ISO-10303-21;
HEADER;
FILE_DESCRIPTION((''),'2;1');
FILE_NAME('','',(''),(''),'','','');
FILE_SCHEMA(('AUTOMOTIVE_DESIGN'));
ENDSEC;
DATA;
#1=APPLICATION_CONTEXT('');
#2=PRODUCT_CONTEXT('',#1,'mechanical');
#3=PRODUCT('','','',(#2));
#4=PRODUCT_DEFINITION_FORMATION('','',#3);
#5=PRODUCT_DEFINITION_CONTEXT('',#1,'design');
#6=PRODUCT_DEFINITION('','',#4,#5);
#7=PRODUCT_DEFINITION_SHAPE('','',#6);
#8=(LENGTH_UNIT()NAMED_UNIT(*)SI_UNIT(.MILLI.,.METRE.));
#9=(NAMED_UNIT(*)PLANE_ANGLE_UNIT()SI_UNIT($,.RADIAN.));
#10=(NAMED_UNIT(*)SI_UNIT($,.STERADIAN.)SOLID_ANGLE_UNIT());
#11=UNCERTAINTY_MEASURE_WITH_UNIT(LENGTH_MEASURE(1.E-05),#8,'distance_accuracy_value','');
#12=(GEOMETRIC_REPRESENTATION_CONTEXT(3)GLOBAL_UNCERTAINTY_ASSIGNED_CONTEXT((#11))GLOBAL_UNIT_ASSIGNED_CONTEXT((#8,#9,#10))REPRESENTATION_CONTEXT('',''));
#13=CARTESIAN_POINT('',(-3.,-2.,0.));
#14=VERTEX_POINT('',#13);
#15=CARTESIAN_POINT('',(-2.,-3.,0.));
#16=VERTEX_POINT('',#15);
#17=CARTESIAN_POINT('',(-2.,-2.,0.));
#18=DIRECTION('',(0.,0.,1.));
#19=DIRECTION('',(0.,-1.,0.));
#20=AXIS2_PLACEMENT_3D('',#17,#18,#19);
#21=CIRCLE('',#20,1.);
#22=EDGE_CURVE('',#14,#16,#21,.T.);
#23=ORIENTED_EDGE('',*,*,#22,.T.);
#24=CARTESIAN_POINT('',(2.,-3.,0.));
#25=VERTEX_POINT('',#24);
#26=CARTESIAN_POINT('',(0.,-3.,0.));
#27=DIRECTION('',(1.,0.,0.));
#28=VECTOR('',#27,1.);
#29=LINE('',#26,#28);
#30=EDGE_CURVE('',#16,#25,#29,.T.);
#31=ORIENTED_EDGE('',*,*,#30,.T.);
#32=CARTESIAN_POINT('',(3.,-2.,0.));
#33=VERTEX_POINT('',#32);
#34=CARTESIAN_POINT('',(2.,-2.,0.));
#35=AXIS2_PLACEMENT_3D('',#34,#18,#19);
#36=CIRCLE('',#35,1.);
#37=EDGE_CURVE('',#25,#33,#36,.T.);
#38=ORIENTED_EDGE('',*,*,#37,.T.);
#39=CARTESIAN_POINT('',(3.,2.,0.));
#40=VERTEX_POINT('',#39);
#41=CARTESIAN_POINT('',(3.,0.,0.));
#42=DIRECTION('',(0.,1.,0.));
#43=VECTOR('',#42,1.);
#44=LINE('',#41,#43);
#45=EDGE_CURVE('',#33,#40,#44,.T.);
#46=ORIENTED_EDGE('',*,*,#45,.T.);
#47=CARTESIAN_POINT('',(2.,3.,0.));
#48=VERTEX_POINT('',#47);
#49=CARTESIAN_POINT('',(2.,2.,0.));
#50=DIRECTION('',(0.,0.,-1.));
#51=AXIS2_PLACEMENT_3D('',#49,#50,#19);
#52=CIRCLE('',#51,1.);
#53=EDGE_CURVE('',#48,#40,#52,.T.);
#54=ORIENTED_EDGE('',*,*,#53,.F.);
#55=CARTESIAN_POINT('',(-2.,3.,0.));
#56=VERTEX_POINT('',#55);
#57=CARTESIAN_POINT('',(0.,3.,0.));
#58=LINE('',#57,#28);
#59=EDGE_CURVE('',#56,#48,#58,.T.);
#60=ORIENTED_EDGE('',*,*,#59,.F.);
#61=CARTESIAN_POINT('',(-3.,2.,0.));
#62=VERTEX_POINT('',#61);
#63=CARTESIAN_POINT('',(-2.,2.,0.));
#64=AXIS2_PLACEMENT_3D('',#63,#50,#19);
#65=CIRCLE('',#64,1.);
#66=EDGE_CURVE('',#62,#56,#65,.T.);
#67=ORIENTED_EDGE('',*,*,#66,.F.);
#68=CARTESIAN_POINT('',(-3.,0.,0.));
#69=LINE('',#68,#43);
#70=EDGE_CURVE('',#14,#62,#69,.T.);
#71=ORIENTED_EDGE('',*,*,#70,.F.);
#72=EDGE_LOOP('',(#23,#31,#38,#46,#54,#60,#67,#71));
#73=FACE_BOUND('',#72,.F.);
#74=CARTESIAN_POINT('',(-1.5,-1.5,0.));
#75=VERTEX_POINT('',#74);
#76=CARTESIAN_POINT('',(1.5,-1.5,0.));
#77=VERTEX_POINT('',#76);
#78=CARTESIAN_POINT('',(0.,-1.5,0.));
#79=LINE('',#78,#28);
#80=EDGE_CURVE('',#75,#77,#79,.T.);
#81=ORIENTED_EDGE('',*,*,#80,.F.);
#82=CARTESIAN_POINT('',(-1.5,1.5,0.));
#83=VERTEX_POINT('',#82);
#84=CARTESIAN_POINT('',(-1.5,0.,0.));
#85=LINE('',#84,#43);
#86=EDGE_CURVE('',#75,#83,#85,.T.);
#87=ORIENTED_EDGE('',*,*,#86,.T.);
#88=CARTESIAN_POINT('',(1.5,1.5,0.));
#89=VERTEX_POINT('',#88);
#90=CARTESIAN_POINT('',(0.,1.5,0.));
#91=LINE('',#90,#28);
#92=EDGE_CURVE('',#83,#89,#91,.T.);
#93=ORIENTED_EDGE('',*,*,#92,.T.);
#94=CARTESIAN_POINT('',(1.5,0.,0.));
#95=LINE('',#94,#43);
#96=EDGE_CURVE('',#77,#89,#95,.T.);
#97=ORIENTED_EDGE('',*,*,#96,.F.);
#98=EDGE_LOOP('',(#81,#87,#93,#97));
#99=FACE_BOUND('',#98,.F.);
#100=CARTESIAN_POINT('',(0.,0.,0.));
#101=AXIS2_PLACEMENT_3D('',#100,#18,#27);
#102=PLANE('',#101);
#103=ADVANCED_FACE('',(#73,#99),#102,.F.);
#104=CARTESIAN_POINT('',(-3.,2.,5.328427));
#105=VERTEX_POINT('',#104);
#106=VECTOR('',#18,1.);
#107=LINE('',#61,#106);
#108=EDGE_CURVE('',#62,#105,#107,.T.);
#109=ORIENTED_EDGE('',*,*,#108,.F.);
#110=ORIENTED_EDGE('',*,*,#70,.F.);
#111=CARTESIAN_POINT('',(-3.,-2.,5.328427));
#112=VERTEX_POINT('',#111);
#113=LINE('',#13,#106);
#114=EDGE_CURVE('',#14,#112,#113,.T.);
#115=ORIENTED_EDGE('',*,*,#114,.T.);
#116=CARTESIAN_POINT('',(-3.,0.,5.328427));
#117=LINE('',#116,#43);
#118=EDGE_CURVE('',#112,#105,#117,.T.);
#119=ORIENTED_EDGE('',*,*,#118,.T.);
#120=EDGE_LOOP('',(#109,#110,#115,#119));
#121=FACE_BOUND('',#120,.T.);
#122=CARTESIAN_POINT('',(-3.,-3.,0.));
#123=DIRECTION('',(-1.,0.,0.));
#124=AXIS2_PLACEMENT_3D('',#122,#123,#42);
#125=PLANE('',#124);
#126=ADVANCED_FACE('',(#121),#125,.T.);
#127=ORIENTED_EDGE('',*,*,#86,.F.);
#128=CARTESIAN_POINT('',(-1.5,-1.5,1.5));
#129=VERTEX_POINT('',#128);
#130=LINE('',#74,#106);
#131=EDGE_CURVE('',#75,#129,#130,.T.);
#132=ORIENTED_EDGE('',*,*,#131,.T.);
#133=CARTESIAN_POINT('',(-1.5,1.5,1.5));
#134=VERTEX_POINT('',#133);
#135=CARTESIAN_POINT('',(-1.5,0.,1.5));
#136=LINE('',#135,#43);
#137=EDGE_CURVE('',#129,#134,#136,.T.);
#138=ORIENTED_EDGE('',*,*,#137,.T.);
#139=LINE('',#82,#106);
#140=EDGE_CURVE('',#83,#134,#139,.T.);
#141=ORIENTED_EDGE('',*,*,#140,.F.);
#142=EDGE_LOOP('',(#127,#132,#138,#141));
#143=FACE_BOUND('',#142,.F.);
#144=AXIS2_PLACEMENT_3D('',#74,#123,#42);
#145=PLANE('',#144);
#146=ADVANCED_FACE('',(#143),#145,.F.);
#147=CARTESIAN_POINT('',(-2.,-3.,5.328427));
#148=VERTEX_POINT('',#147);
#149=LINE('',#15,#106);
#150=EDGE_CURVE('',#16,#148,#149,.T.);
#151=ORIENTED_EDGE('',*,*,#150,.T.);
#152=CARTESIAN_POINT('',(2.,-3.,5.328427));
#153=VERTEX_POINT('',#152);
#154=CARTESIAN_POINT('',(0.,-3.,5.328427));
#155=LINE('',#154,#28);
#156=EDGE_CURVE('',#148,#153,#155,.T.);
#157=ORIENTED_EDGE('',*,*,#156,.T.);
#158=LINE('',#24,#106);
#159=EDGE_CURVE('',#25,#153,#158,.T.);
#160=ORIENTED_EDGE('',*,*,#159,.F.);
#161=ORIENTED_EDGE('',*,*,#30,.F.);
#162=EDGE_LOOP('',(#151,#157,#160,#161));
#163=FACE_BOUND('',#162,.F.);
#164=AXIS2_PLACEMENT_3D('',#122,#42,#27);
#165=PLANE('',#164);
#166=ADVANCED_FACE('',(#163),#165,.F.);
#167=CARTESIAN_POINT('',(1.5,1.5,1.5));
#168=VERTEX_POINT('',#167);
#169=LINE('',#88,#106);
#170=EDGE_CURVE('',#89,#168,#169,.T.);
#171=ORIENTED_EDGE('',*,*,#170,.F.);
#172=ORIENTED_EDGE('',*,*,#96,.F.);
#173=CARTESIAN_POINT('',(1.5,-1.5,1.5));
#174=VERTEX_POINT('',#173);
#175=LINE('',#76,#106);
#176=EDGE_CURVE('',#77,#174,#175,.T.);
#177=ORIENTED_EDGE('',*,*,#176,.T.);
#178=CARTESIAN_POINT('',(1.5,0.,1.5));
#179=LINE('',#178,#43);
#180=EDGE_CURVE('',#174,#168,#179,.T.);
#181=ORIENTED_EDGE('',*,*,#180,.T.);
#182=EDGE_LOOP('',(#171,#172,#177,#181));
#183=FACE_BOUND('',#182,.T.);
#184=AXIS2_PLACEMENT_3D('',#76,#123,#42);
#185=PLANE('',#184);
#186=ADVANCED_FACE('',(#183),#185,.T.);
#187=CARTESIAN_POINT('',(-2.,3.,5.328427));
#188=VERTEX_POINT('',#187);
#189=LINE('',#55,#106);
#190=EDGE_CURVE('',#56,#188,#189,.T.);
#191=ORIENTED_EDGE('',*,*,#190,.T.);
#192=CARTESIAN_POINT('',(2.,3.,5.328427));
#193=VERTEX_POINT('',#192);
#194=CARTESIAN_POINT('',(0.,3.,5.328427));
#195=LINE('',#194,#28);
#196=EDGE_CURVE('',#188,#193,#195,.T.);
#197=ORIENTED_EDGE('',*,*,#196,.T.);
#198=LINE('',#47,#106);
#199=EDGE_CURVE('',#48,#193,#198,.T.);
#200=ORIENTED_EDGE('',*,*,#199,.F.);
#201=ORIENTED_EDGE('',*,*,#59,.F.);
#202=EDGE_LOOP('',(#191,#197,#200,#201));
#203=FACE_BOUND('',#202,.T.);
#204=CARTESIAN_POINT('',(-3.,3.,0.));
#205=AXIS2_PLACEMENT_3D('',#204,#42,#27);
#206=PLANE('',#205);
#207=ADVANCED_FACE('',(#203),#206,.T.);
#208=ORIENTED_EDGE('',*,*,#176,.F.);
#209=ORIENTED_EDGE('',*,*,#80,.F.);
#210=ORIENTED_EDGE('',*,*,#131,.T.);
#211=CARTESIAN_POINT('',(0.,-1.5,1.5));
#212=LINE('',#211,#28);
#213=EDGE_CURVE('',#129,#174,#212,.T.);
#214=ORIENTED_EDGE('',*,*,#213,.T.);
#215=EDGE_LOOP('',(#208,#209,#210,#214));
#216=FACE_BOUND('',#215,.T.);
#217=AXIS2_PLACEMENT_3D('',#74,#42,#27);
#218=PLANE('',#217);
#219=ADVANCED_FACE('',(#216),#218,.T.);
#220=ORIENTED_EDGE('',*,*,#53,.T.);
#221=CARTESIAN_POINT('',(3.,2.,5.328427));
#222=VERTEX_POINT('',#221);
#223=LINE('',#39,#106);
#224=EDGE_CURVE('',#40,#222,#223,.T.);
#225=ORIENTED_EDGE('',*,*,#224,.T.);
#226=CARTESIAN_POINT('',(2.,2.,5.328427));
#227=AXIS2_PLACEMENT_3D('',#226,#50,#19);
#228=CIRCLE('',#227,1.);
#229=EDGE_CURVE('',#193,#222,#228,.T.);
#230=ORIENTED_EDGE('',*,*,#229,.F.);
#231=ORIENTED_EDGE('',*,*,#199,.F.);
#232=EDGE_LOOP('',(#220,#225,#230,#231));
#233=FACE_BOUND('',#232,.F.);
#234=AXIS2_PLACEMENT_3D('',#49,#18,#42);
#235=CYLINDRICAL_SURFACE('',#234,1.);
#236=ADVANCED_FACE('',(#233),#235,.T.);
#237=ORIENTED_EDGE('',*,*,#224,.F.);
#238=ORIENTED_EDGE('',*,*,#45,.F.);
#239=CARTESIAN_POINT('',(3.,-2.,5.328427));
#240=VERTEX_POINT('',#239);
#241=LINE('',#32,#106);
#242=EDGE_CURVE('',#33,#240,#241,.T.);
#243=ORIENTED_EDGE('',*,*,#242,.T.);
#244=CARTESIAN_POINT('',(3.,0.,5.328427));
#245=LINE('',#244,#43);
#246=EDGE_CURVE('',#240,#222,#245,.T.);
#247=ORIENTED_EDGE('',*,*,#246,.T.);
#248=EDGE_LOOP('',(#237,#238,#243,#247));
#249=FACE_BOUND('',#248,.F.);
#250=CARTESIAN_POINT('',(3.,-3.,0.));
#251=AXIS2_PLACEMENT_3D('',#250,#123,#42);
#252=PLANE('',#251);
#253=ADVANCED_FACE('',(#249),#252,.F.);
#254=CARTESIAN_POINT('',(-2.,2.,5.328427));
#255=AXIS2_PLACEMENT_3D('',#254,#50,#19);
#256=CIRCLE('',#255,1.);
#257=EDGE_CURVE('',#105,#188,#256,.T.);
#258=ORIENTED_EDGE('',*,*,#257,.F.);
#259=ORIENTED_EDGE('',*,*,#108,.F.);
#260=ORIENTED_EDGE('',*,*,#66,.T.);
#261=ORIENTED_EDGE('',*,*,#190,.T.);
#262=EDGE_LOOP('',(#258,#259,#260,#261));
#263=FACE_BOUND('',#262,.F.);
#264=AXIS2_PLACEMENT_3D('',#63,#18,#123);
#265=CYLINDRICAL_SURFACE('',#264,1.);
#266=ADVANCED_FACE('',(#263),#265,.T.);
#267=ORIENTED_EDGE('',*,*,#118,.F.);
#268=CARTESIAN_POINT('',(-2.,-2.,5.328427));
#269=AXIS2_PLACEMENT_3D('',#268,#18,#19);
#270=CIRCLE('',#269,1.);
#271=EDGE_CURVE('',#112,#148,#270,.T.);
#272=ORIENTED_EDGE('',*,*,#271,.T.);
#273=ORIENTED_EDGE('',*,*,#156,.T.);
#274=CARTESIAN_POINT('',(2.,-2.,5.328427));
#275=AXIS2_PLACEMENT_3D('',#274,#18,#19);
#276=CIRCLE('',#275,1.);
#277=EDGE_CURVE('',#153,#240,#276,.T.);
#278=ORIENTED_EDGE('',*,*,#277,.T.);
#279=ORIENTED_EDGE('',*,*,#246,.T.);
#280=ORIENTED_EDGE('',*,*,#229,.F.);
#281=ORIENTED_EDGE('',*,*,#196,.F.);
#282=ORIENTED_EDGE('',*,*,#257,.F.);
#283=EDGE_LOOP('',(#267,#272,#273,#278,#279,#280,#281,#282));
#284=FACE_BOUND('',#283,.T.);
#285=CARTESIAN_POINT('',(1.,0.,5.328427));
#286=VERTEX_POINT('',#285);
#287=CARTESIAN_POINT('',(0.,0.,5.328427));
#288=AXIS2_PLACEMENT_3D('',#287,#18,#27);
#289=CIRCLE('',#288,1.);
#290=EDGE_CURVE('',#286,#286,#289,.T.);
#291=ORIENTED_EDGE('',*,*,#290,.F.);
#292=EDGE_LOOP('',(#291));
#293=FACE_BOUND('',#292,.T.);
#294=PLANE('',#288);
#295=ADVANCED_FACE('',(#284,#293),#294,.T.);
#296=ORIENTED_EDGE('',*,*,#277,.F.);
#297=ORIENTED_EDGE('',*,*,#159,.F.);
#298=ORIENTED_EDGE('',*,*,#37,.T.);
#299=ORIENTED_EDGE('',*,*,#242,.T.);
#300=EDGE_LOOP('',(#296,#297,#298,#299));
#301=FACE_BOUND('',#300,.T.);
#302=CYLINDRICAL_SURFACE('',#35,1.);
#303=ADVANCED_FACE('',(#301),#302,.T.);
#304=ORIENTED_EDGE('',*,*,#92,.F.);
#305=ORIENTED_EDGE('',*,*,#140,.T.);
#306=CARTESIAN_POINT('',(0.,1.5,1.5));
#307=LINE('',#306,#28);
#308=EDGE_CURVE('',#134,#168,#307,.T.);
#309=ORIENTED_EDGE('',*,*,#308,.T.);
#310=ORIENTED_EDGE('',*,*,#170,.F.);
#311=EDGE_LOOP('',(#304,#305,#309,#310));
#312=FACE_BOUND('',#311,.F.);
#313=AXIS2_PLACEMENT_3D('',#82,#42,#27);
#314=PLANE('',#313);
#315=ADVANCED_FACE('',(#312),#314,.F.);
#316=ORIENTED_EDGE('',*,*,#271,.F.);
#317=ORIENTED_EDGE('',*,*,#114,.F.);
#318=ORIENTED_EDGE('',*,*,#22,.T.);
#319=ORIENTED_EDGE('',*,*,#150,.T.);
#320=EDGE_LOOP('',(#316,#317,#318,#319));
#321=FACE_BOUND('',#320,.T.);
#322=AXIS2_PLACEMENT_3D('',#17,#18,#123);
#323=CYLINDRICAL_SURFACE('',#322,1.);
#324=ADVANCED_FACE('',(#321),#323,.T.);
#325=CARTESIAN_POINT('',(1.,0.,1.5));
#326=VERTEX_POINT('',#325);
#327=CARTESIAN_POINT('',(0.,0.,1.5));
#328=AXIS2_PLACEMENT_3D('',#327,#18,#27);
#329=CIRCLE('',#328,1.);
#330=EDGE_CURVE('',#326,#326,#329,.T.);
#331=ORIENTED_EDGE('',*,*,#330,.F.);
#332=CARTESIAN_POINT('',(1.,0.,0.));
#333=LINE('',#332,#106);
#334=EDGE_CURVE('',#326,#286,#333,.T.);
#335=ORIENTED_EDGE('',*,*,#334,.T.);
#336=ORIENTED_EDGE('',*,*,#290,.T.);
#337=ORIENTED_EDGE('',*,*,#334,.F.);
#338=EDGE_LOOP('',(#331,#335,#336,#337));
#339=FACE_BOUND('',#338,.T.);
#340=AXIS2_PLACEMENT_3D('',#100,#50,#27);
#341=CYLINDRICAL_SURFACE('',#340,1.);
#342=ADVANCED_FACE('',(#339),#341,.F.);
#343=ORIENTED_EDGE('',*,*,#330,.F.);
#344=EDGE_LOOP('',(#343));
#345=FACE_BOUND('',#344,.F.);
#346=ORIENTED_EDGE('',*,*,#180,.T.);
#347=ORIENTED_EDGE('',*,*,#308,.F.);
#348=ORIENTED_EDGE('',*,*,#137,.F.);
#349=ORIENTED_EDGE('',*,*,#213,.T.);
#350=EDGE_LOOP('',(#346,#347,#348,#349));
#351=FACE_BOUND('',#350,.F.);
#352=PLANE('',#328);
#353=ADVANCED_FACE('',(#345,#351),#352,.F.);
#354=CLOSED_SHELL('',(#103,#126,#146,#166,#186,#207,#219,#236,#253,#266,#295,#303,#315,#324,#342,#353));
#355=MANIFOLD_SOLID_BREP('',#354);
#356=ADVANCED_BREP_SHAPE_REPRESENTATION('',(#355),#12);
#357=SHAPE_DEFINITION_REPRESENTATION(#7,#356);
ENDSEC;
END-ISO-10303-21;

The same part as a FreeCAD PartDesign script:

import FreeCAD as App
import Part
import Sketcher

V = App.Vector


def edges_at(feature, points):
    """Names of the edges that pass closest to the given points."""
    edges = feature.Shape.Edges
    near = lambda p: min(range(len(edges)), key=lambda i: edges[i].distToShape(Part.Vertex(*p))[0])
    return sorted({f"Edge{near(p) + 1}" for p in points})

doc = App.newDocument("Part")
body = doc.addObject("PartDesign::Body", "Body")

# Sketch on XY plane
sketch1 = body.newObject("Sketcher::SketchObject", "Sketch")
sketch1.AttachmentSupport = (doc.getObject("XY_Plane"), [""])
sketch1.MapMode = "FlatFace"
sketch1.addGeometry(Part.LineSegment(V(-3, 3, 0), V(-3, -3, 0)), False)
sketch1.addGeometry(Part.LineSegment(V(-3, -3, 0), V(3, -3, 0)), False)
sketch1.addGeometry(Part.LineSegment(V(3, -3, 0), V(3, 3, 0)), False)
sketch1.addGeometry(Part.LineSegment(V(3, 3, 0), V(-3, 3, 0)), False)
sketch1.addGeometry(Part.Circle(V(0, 0, 0), V(0, 0, 1), 1), False)
sketch1.addConstraint(Sketcher.Constraint("Coincident", 0, 2, 1, 1))
sketch1.addConstraint(Sketcher.Constraint("Coincident", 1, 2, 2, 1))
sketch1.addConstraint(Sketcher.Constraint("Coincident", 2, 2, 3, 1))
sketch1.addConstraint(Sketcher.Constraint("Coincident", 3, 2, 0, 1))
sketch1.addConstraint(Sketcher.Constraint("Vertical", 0))
sketch1.addConstraint(Sketcher.Constraint("Horizontal", 1))
sketch1.addConstraint(Sketcher.Constraint("Vertical", 2))
sketch1.addConstraint(Sketcher.Constraint("Horizontal", 3))
sketch1.addConstraint(Sketcher.Constraint("Coincident", 4, 3, -1, 1))
sketch1.addConstraint(Sketcher.Constraint("Symmetric", 0, 2, 2, 2, -1, 1))
sketch1.addConstraint(Sketcher.Constraint("Equal", 3, 0))
sketch1.addConstraint(Sketcher.Constraint("Diameter", 4, 2.0))
sketch1.addConstraint(Sketcher.Constraint("DistanceX", 1, 1, 1, 2, 6.0))
pad1 = body.newObject("PartDesign::Pad", "Pad")
pad1.Profile = sketch1
pad1.Length = 5.328427

# Sketch on XY plane
sketch2 = body.newObject("Sketcher::SketchObject", "Sketch001")
sketch2.AttachmentSupport = (doc.getObject("XY_Plane"), [""])
sketch2.MapMode = "FlatFace"
sketch2.addGeometry(Part.LineSegment(V(-1.5, 1.5, 0), V(-1.5, -1.5, 0)), False)
sketch2.addGeometry(Part.LineSegment(V(-1.5, -1.5, 0), V(1.5, -1.5, 0)), False)
sketch2.addGeometry(Part.LineSegment(V(1.5, -1.5, 0), V(1.5, 1.5, 0)), False)
sketch2.addGeometry(Part.LineSegment(V(1.5, 1.5, 0), V(-1.5, 1.5, 0)), False)
sketch2.addGeometry(Part.Circle(V(0, 0, 0), V(0, 0, 1), 1), False)
sketch2.addConstraint(Sketcher.Constraint("Coincident", 0, 2, 1, 1))
sketch2.addConstraint(Sketcher.Constraint("Coincident", 1, 2, 2, 1))
sketch2.addConstraint(Sketcher.Constraint("Coincident", 2, 2, 3, 1))
sketch2.addConstraint(Sketcher.Constraint("Coincident", 3, 2, 0, 1))
sketch2.addConstraint(Sketcher.Constraint("Vertical", 0))
sketch2.addConstraint(Sketcher.Constraint("Horizontal", 1))
sketch2.addConstraint(Sketcher.Constraint("Vertical", 2))
sketch2.addConstraint(Sketcher.Constraint("Horizontal", 3))
sketch2.addConstraint(Sketcher.Constraint("Coincident", 4, 3, -1, 1))
sketch2.addConstraint(Sketcher.Constraint("Symmetric", 0, 2, 2, 2, -1, 1))
sketch2.addConstraint(Sketcher.Constraint("Equal", 3, 0))
sketch2.addConstraint(Sketcher.Constraint("Diameter", 4, 2.0))
sketch2.addConstraint(Sketcher.Constraint("DistanceX", 1, 1, 1, 2, 3.0))
pocket1 = body.newObject("PartDesign::Pocket", "Pocket")
pocket1.Profile = sketch2
pocket1.Length = 1.5
pocket1.Reversed = True
doc.recompute()

fillet = body.newObject("PartDesign::Fillet", "Fillet")
fillet.Base = (pocket1, edges_at(pocket1, [
    (-3, -3, 2.664),
    (3, -3, 2.664),
    (3, 3, 2.664),
    (-3, 3, 2.664),
]))
fillet.Radius = 1

doc.recompute()
